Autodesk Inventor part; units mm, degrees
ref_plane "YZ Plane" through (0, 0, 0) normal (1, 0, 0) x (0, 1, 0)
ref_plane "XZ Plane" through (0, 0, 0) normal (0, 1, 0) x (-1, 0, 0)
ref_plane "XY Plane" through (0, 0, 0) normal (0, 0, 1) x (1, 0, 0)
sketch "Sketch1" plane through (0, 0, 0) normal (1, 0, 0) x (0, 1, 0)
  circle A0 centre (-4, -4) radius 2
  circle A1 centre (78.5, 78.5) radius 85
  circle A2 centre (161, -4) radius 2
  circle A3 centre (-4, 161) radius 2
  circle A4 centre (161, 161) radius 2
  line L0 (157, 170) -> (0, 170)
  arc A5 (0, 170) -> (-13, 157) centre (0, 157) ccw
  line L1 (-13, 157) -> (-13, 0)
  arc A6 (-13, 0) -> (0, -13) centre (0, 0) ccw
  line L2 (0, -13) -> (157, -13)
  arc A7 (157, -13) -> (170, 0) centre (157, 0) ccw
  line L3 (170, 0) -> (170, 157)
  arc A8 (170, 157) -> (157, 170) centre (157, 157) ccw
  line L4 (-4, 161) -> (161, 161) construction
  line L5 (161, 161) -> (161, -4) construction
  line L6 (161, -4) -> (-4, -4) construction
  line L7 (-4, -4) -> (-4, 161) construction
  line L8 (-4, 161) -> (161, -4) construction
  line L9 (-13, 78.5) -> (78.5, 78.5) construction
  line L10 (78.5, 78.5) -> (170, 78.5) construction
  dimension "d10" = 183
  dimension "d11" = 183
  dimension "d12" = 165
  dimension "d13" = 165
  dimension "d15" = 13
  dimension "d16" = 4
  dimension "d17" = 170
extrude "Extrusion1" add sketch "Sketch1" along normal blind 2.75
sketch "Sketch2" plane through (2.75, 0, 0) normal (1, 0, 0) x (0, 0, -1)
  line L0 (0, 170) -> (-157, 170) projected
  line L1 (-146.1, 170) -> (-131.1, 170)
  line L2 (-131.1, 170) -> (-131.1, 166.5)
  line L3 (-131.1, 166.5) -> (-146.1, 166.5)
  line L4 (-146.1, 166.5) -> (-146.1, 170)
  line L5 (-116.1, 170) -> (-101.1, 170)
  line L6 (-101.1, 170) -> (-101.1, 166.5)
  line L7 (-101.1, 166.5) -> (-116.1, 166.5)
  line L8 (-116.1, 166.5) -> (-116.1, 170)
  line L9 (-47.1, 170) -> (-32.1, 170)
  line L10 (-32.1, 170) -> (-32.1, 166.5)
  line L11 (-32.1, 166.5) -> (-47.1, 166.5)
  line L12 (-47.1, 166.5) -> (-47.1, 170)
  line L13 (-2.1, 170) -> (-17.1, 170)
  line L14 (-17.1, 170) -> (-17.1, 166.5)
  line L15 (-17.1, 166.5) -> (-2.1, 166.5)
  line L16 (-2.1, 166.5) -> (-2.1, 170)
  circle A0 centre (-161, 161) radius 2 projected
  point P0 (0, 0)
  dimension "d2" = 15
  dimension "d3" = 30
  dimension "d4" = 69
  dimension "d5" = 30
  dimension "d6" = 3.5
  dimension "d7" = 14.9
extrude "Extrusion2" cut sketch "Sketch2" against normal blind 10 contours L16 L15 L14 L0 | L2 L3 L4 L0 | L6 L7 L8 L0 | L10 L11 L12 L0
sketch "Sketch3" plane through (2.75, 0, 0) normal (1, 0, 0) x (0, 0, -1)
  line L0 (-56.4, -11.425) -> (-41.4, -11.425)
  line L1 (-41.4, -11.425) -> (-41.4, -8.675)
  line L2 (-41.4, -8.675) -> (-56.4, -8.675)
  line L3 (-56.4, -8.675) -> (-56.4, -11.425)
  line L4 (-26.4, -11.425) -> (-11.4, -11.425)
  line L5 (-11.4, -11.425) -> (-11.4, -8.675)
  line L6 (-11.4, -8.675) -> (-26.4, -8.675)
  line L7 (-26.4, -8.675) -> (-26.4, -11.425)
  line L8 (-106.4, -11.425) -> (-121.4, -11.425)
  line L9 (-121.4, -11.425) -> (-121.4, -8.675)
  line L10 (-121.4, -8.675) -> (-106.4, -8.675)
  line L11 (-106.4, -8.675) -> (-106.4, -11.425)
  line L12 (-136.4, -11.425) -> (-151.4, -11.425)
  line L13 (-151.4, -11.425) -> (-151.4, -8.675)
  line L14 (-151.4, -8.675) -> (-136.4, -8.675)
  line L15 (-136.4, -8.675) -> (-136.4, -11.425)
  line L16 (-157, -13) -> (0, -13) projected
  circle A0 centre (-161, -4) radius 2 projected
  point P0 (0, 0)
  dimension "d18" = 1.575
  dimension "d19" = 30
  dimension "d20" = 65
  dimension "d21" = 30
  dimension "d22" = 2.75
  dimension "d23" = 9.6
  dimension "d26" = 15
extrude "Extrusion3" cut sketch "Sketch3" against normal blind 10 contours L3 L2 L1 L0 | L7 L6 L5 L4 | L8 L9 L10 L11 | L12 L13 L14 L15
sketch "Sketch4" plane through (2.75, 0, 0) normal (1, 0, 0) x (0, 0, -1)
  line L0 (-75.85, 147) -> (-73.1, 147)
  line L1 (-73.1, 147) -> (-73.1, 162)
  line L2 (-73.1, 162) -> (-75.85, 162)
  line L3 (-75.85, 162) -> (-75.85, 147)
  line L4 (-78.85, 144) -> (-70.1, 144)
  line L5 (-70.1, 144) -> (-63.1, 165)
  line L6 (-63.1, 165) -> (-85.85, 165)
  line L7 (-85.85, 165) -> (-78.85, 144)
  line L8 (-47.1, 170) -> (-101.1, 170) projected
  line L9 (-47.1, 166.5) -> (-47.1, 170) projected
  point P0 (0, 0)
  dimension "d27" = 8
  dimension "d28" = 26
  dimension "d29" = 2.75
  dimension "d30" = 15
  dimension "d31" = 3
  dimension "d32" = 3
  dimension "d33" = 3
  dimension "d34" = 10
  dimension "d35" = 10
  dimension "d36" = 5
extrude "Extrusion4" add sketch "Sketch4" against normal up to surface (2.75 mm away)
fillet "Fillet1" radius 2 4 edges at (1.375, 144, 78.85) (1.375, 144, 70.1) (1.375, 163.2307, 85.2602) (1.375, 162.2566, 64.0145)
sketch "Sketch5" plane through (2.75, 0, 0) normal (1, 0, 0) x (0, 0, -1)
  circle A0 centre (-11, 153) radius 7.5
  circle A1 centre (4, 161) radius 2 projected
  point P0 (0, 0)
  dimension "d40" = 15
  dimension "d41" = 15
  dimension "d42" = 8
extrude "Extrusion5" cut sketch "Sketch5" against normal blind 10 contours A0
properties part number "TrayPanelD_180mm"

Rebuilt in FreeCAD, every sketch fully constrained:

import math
import FreeCAD as App
import Part
import Sketcher
from FreeCAD import Vector


def edges_at(feature, points):
    """Names of the edges that pass closest to the given points."""
    edges = feature.Shape.Edges
    near = lambda p: min(range(len(edges)), key=lambda i: edges[i].distToShape(Part.Vertex(*p))[0])
    return sorted({f"Edge{near(p) + 1}" for p in points})

doc = App.newDocument("Part")
params = doc.addObject("Spreadsheet::Sheet", "Params")
for row, (alias, value) in enumerate([
    ("sketch1_diameter", "4 mm"),
    ("sketch1_diameter2", "170 mm"),
    ("sketch1_radius", "13 mm"),
    ("pad1_length", "2.75 mm"),
    ("sketch2_height", "15 mm"),
    ("sketch2_width", "3.5 mm"),
    ("pocket1_length", "10 mm"),
    ("sketch3_height", "15 mm"),
    ("sketch3_width", "2.75 mm"),
    ("pocket2_length", "10 mm"),
    ("sketch4_width", "15 mm"),
    ("sketch4_height", "2.75 mm"),
    ("pad2_length", "2.75 mm"),
    ("fillet_radius", "2 mm"),
    ("sketch5_diameter", "15 mm"),
    ("pocket3_length", "10 mm"),
], start=1):
    params.set(f"A{row}", alias)
    params.set(f"B{row}", "=" + value)
    params.setAlias(f"B{row}", alias)

body = doc.addObject("PartDesign::Body", "Body")

# Sketch on YZ plane
sketch1 = body.newObject("Sketcher::SketchObject", "Sketch")
sketch1.AttachmentSupport = (doc.getObject("YZ_Plane"), [""])
sketch1.MapMode = "FlatFace"
sketch1.addGeometry([
    Part.ArcOfCircle(Part.Circle(Vector(157, 157, 0), Vector(0, 0, 1), 13), math.radians(0), math.radians(90)),  # 0
    Part.LineSegment(Vector(157, 170, 0), Vector(0, 170, 0)),  # 1
    Part.ArcOfCircle(Part.Circle(Vector(0, 157, 0), Vector(0, 0, 1), 13), math.radians(90), math.radians(180)),  # 2
    Part.LineSegment(Vector(-13, 157, 0), Vector(-13, 0, 0)),  # 3
    Part.ArcOfCircle(Part.Circle(Vector(0, 0, 0), Vector(0, 0, 1), 13), math.radians(180), math.radians(270)),  # 4
    Part.LineSegment(Vector(0, -13, 0), Vector(157, -13, 0)),  # 5
    Part.ArcOfCircle(Part.Circle(Vector(157, 0, 0), Vector(0, 0, 1), 13), math.radians(-90), math.radians(0)),  # 6
    Part.LineSegment(Vector(170, 0, 0), Vector(170, 157, 0)),  # 7
    Part.Circle(Vector(-4, -4, 0), Vector(0, 0, 1), 2),  # 8
    Part.Circle(Vector(161, -4, 0), Vector(0, 0, 1), 2),  # 9
    Part.Circle(Vector(-4, 161, 0), Vector(0, 0, 1), 2),  # 10
    Part.Circle(Vector(78.5, 78.5, 0), Vector(0, 0, 1), 85),  # 11
    Part.Circle(Vector(161, 161, 0), Vector(0, 0, 1), 2),  # 12
], False)
sketch1.addConstraint([
    Sketcher.Constraint("Tangent", 0, 2, 1, 1),
    Sketcher.Constraint("Tangent", 1, 2, 2, 1),
    Sketcher.Constraint("Tangent", 2, 2, 3, 1),
    Sketcher.Constraint("Tangent", 3, 2, 4, 1),
    Sketcher.Constraint("Tangent", 4, 2, 5, 1),
    Sketcher.Constraint("Tangent", 5, 2, 6, 1),
    Sketcher.Constraint("Tangent", 6, 2, 7, 1),
    Sketcher.Constraint("Tangent", 7, 2, 0, 1),
    Sketcher.Constraint("Horizontal", 1),
    Sketcher.Constraint("Vertical", 3),
    Sketcher.Constraint("Horizontal", 5),
    Sketcher.Constraint("Vertical", 7),
    Sketcher.Constraint("Coincident", 4, 3, -1, 1),
    Sketcher.Constraint("Equal", 0, 2),
    Sketcher.Constraint("Equal", 2, 4),
    Sketcher.Constraint("Equal", 4, 6),
    Sketcher.Constraint("Equal", 8, 9),
    Sketcher.Constraint("Equal", 9, 10),
    Sketcher.Constraint("Equal", 10, 12),
    Sketcher.Constraint("Horizontal", 8, 3, 9, 3),
    Sketcher.Constraint("Horizontal", 10, 3, 12, 3),
    Sketcher.Constraint("Vertical", 8, 3, 10, 3),
    Sketcher.Constraint("Vertical", 9, 3, 12, 3),
    Sketcher.Constraint("Equal", 5, 3),
    Sketcher.Constraint("Diameter", 8, 4.0),
    Sketcher.Constraint("Diameter", 11, 170.0),
    Sketcher.Constraint("Radius", 0, 13.0),
    Sketcher.Constraint("DistanceX", 8, 3, -1, 1, 4.0),
    Sketcher.Constraint("DistanceY", 8, 3, -1, 1, 4.0),
    Sketcher.Constraint("DistanceY", -1, 1, 0, 2, 170.0),
    Sketcher.Constraint("DistanceX", 6, 3, 9, 3, 4.0),
    Sketcher.Constraint("DistanceY", 2, 3, 10, 3, 4.0),
    Sketcher.Constraint("DistanceX", -1, 1, 11, 3, 78.5),
    Sketcher.Constraint("DistanceY", -1, 1, 11, 3, 78.5),
])
sketch1.setExpression("Constraints[24]", "Params.sketch1_diameter")
sketch1.setExpression("Constraints[25]", "Params.sketch1_diameter2")
sketch1.setExpression("Constraints[26]", "Params.sketch1_radius")
pad1 = body.newObject("PartDesign::Pad", "Pad")
pad1.Profile = sketch1
pad1.setExpression("Length", "Params.pad1_length")

# Sketch on YZ plane
sketch2 = body.newObject("Sketcher::SketchObject", "Sketch001")
sketch2.AttachmentSupport = (doc.getObject("YZ_Plane"), [""])
sketch2.MapMode = "FlatFace"
sketch2.AttachmentOffset = App.Placement(Vector(0, 0, 2.75), App.Rotation())
sketch2.addGeometry([
    Part.LineSegment(Vector(166.5, 2.1, 0), Vector(170, 2.1, 0)),  # 0
    Part.LineSegment(Vector(170, 2.1, 0), Vector(170, 17.1, 0)),  # 1
    Part.LineSegment(Vector(170, 17.1, 0), Vector(166.5, 17.1, 0)),  # 2
    Part.LineSegment(Vector(166.5, 17.1, 0), Vector(166.5, 2.1, 0)),  # 3
    Part.LineSegment(Vector(166.5, 131.1, 0), Vector(170, 131.1, 0)),  # 4
    Part.LineSegment(Vector(170, 131.1, 0), Vector(170, 146.1, 0)),  # 5
    Part.LineSegment(Vector(170, 146.1, 0), Vector(166.5, 146.1, 0)),  # 6
    Part.LineSegment(Vector(166.5, 146.1, 0), Vector(166.5, 131.1, 0)),  # 7
    Part.LineSegment(Vector(166.5, 101.1, 0), Vector(170, 101.1, 0)),  # 8
    Part.LineSegment(Vector(170, 101.1, 0), Vector(170, 116.1, 0)),  # 9
    Part.LineSegment(Vector(170, 116.1, 0), Vector(166.5, 116.1, 0)),  # 10
    Part.LineSegment(Vector(166.5, 116.1, 0), Vector(166.5, 101.1, 0)),  # 11
    Part.LineSegment(Vector(166.5, 32.1, 0), Vector(170, 32.1, 0)),  # 12
    Part.LineSegment(Vector(170, 32.1, 0), Vector(170, 47.1, 0)),  # 13
    Part.LineSegment(Vector(170, 47.1, 0), Vector(166.5, 47.1, 0)),  # 14
    Part.LineSegment(Vector(166.5, 47.1, 0), Vector(166.5, 32.1, 0)),  # 15
], False)
sketch2.addConstraint([
    Sketcher.Constraint("Coincident", 0, 2, 1, 1),
    Sketcher.Constraint("Coincident", 1, 2, 2, 1),
    Sketcher.Constraint("Coincident", 2, 2, 3, 1),
    Sketcher.Constraint("Coincident", 3, 2, 0, 1),
    Sketcher.Constraint("Coincident", 4, 2, 5, 1),
    Sketcher.Constraint("Coincident", 5, 2, 6, 1),
    Sketcher.Constraint("Coincident", 6, 2, 7, 1),
    Sketcher.Constraint("Coincident", 7, 2, 4, 1),
    Sketcher.Constraint("Coincident", 8, 2, 9, 1),
    Sketcher.Constraint("Coincident", 9, 2, 10, 1),
    Sketcher.Constraint("Coincident", 10, 2, 11, 1),
    Sketcher.Constraint("Coincident", 11, 2, 8, 1),
    Sketcher.Constraint("Coincident", 12, 2, 13, 1),
    Sketcher.Constraint("Coincident", 13, 2, 14, 1),
    Sketcher.Constraint("Coincident", 14, 2, 15, 1),
    Sketcher.Constraint("Coincident", 15, 2, 12, 1),
    Sketcher.Constraint("Horizontal", 0),
    Sketcher.Constraint("Vertical", 1),
    Sketcher.Constraint("Horizontal", 2),
    Sketcher.Constraint("Vertical", 3),
    Sketcher.Constraint("Horizontal", 4),
    Sketcher.Constraint("Vertical", 5),
    Sketcher.Constraint("Horizontal", 6),
    Sketcher.Constraint("Vertical", 7),
    Sketcher.Constraint("Horizontal", 8),
    Sketcher.Constraint("Vertical", 9),
    Sketcher.Constraint("Horizontal", 10),
    Sketcher.Constraint("Vertical", 11),
    Sketcher.Constraint("Horizontal", 12),
    Sketcher.Constraint("Vertical", 13),
    Sketcher.Constraint("Horizontal", 14),
    Sketcher.Constraint("Vertical", 15),
    Sketcher.Constraint("Vertical", 1, 2, 4, 2),
    Sketcher.Constraint("Vertical", 3, 2, 6, 2),
    Sketcher.Constraint("Vertical", 5, 2, 8, 2),
    Sketcher.Constraint("Vertical", 7, 2, 10, 2),
    Sketcher.Constraint("Vertical", 9, 2, 12, 2),
    Sketcher.Constraint("Vertical", 11, 2, 14, 2),
    Sketcher.Constraint("Equal", 3, 5),
    Sketcher.Constraint("Equal", 7, 9),
    Sketcher.Constraint("Equal", 11, 13),
    Sketcher.Constraint("DistanceY", 1, 1, 1, 2, 15.0),
    Sketcher.Constraint("DistanceX", 0, 1, 0, 2, 3.5),
    Sketcher.Constraint("DistanceY", 8, 2, 4, 2, 30.0),
    Sketcher.Constraint("DistanceY", 1, 2, 12, 2, 15.0),
    Sketcher.Constraint("DistanceY", 12, 2, 8, 2, 69.0),
    Sketcher.Constraint("DistanceX", -1, 1, 0, 2, 170.0),
    Sketcher.Constraint("DistanceY", -1, 1, 0, 2, 2.1),
])
sketch2.setExpression("Constraints[41]", "Params.sketch2_height")
sketch2.setExpression("Constraints[42]", "Params.sketch2_width")
pocket1 = body.newObject("PartDesign::Pocket", "Pocket")
pocket1.Profile = sketch2
pocket1.setExpression("Length", "Params.pocket1_length")

# Sketch on YZ plane
sketch3 = body.newObject("Sketcher::SketchObject", "Sketch002")
sketch3.AttachmentSupport = (doc.getObject("YZ_Plane"), [""])
sketch3.MapMode = "FlatFace"
sketch3.AttachmentOffset = App.Placement(Vector(0, 0, 2.75), App.Rotation())
sketch3.addGeometry([
    Part.LineSegment(Vector(-8.7, 56.4, 0), Vector(-11.4, 56.4, 0)),  # 0
    Part.LineSegment(Vector(-11.4, 56.4, 0), Vector(-11.4, 41.4, 0)),  # 1
    Part.LineSegment(Vector(-11.4, 41.4, 0), Vector(-8.7, 41.4, 0)),  # 2
    Part.LineSegment(Vector(-8.7, 41.4, 0), Vector(-8.7, 56.4, 0)),  # 3
    Part.LineSegment(Vector(-8.7, 26.4, 0), Vector(-11.4, 26.4, 0)),  # 4
    Part.LineSegment(Vector(-11.4, 26.4, 0), Vector(-11.4, 11.4, 0)),  # 5
    Part.LineSegment(Vector(-11.4, 11.4, 0), Vector(-8.7, 11.4, 0)),  # 6
    Part.LineSegment(Vector(-8.7, 11.4, 0), Vector(-8.7, 26.4, 0)),  # 7
    Part.LineSegment(Vector(-11.4, 121.4, 0), Vector(-11.4, 106.4, 0)),  # 8
    Part.LineSegment(Vector(-11.4, 106.4, 0), Vector(-8.7, 106.4, 0)),  # 9
    Part.LineSegment(Vector(-8.7, 106.4, 0), Vector(-8.7, 121.4, 0)),  # 10
    Part.LineSegment(Vector(-8.7, 121.4, 0), Vector(-11.4, 121.4, 0)),  # 11
    Part.LineSegment(Vector(-11.4, 151.4, 0), Vector(-11.4, 136.4, 0)),  # 12
    Part.LineSegment(Vector(-11.4, 136.4, 0), Vector(-8.7, 136.4, 0)),  # 13
    Part.LineSegment(Vector(-8.7, 136.4, 0), Vector(-8.7, 151.4, 0)),  # 14
    Part.LineSegment(Vector(-8.7, 151.4, 0), Vector(-11.4, 151.4, 0)),  # 15
], False)
sketch3.addConstraint([
    Sketcher.Constraint("Coincident", 0, 2, 1, 1),
    Sketcher.Constraint("Coincident", 1, 2, 2, 1),
    Sketcher.Constraint("Coincident", 2, 2, 3, 1),
    Sketcher.Constraint("Coincident", 3, 2, 0, 1),
    Sketcher.Constraint("Coincident", 4, 2, 5, 1),
    Sketcher.Constraint("Coincident", 5, 2, 6, 1),
    Sketcher.Constraint("Coincident", 6, 2, 7, 1),
    Sketcher.Constraint("Coincident", 7, 2, 4, 1),
    Sketcher.Constraint("Coincident", 8, 2, 9, 1),
    Sketcher.Constraint("Coincident", 9, 2, 10, 1),
    Sketcher.Constraint("Coincident", 10, 2, 11, 1),
    Sketcher.Constraint("Coincident", 11, 2, 8, 1),
    Sketcher.Constraint("Coincident", 12, 2, 13, 1),
    Sketcher.Constraint("Coincident", 13, 2, 14, 1),
    Sketcher.Constraint("Coincident", 14, 2, 15, 1),
    Sketcher.Constraint("Coincident", 15, 2, 12, 1),
    Sketcher.Constraint("Horizontal", 0),
    Sketcher.Constraint("Vertical", 1),
    Sketcher.Constraint("Horizontal", 2),
    Sketcher.Constraint("Vertical", 3),
    Sketcher.Constraint("Horizontal", 4),
    Sketcher.Constraint("Vertical", 5),
    Sketcher.Constraint("Horizontal", 6),
    Sketcher.Constraint("Vertical", 7),
    Sketcher.Constraint("Vertical", 8),
    Sketcher.Constraint("Horizontal", 9),
    Sketcher.Constraint("Vertical", 10),
    Sketcher.Constraint("Horizontal", 11),
    Sketcher.Constraint("Vertical", 12),
    Sketcher.Constraint("Horizontal", 13),
    Sketcher.Constraint("Vertical", 14),
    Sketcher.Constraint("Horizontal", 15),
    Sketcher.Constraint("Vertical", 1, 2, 4, 2),
    Sketcher.Constraint("Vertical", 3, 2, 6, 2),
    Sketcher.Constraint("Vertical", 5, 2, 8, 2),
    Sketcher.Constraint("Vertical", 7, 2, 9, 2),
    Sketcher.Constraint("Vertical", 11, 2, 12, 2),
    Sketcher.Constraint("Vertical", 10, 2, 13, 2),
    Sketcher.Constraint("Equal", 3, 5),
    Sketcher.Constraint("Equal", 7, 8),
    Sketcher.Constraint("Equal", 10, 12),
    Sketcher.Constraint("DistanceY", 1, 2, 1, 1, 15.0),
    Sketcher.Constraint("DistanceY", 4, 2, 1, 2, 15.0),
    Sketcher.Constraint("DistanceY", 1, 2, 8, 2, 65.0),
    Sketcher.Constraint("DistanceY", 11, 2, 12, 2, 15.0),
    Sketcher.Constraint("DistanceX", 0, 2, 0, 1, 2.75),
    Sketcher.Constraint("DistanceY", -1, 1, 0, 2, 56.4),
    Sketcher.Constraint("DistanceX", 0, 2, -1, 1, 11.425),
])
sketch3.setExpression("Constraints[41]", "Params.sketch3_height")
sketch3.setExpression("Constraints[45]", "Params.sketch3_width")
pocket2 = body.newObject("PartDesign::Pocket", "Pocket001")
pocket2.Profile = sketch3
pocket2.setExpression("Length", "Params.pocket2_length")

# Sketch on YZ plane
sketch4 = body.newObject("Sketcher::SketchObject", "Sketch003")
sketch4.AttachmentSupport = (doc.getObject("YZ_Plane"), [""])
sketch4.MapMode = "FlatFace"
sketch4.AttachmentOffset = App.Placement(Vector(0, 0, 2.75), App.Rotation())
sketch4.addGeometry([
    Part.LineSegment(Vector(165, 85.8, 0), Vector(144, 78.8, 0)),  # 0
    Part.LineSegment(Vector(144, 78.8, 0), Vector(144, 70.1, 0)),  # 1
    Part.LineSegment(Vector(144, 70.1, 0), Vector(165, 63.1, 0)),  # 2
    Part.LineSegment(Vector(165, 63.1, 0), Vector(165, 85.8, 0)),  # 3
    Part.LineSegment(Vector(147, 73.1, 0), Vector(147, 75.8, 0)),  # 4
    Part.LineSegment(Vector(147, 75.8, 0), Vector(162, 75.8, 0)),  # 5
    Part.LineSegment(Vector(162, 75.8, 0), Vector(162, 73.1, 0)),  # 6
    Part.LineSegment(Vector(162, 73.1, 0), Vector(147, 73.1, 0)),  # 7
], False)
sketch4.addConstraint([
    Sketcher.Constraint("Coincident", 0, 2, 1, 1),
    Sketcher.Constraint("Coincident", 1, 2, 2, 1),
    Sketcher.Constraint("Coincident", 2, 2, 3, 1),
    Sketcher.Constraint("Coincident", 3, 2, 0, 1),
    Sketcher.Constraint("Coincident", 4, 2, 5, 1),
    Sketcher.Constraint("Coincident", 5, 2, 6, 1),
    Sketcher.Constraint("Coincident", 6, 2, 7, 1),
    Sketcher.Constraint("Coincident", 7, 2, 4, 1),
    Sketcher.Constraint("Vertical", 1),
    Sketcher.Constraint("Vertical", 3),
    Sketcher.Constraint("Vertical", 4),
    Sketcher.Constraint("Horizontal", 5),
    Sketcher.Constraint("Vertical", 6),
    Sketcher.Constraint("Horizontal", 7),
    Sketcher.Constraint("Equal", 0, 2),
    Sketcher.Constraint("DistanceX", 5, 1, 5, 2, 15.0),
    Sketcher.Constraint("DistanceX", 0, 2, 4, 2, 3.0),
    Sketcher.Constraint("DistanceY", 4, 2, 0, 2, 3.0),
    Sketcher.Constraint("DistanceY", 4, 2, 3, 2, 10.0),
    Sketcher.Constraint("DistanceX", 5, 2, 3, 2, 3.0),
    Sketcher.Constraint("DistanceY", 2, 2, 6, 2, 10.0),
    Sketcher.Constraint("DistanceY", 4, 1, 4, 2, 2.75),
    Sketcher.Constraint("DistanceX", -1, 1, 0, 2, 144.0),
    Sketcher.Constraint("DistanceY", -1, 1, 1, 2, 70.1),
])
sketch4.setExpression("Constraints[15]", "Params.sketch4_width")
sketch4.setExpression("Constraints[21]", "Params.sketch4_height")
pad2 = body.newObject("PartDesign::Pad", "Pad001")
pad2.Profile = sketch4
pad2.setExpression("Length", "Params.pad2_length")
pad2.Reversed = True
doc.recompute()

fillet = body.newObject("PartDesign::Fillet", "Fillet")
fillet.Base = (pad2, edges_at(pad2, [
    (1.375, 144, 78.85),
    (1.375, 144, 70.1),
    (1.375, 163.231, 85.26),
    (1.375, 162.257, 64.014),
]))
fillet.setExpression("Radius", "Params.fillet_radius")

# Sketch on YZ plane
sketch5 = body.newObject("Sketcher::SketchObject", "Sketch004")
sketch5.AttachmentSupport = (doc.getObject("YZ_Plane"), [""])
sketch5.MapMode = "FlatFace"
sketch5.AttachmentOffset = App.Placement(Vector(0, 0, 2.75), App.Rotation())
sketch5.addGeometry(Part.Circle(Vector(153, 11, 0), Vector(0, 0, 1), 8), False)
sketch5.addConstraint([
    Sketcher.Constraint("Diameter", 0, 15.0),
    Sketcher.Constraint("DistanceX", -1, 1, 0, 3, 153.0),
    Sketcher.Constraint("DistanceY", -1, 1, 0, 3, 11.0),
])
sketch5.setExpression("Constraints[0]", "Params.sketch5_diameter")
pocket3 = body.newObject("PartDesign::Pocket", "Pocket002")
pocket3.Profile = sketch5
pocket3.setExpression("Length", "Params.pocket3_length")

doc.recompute()
